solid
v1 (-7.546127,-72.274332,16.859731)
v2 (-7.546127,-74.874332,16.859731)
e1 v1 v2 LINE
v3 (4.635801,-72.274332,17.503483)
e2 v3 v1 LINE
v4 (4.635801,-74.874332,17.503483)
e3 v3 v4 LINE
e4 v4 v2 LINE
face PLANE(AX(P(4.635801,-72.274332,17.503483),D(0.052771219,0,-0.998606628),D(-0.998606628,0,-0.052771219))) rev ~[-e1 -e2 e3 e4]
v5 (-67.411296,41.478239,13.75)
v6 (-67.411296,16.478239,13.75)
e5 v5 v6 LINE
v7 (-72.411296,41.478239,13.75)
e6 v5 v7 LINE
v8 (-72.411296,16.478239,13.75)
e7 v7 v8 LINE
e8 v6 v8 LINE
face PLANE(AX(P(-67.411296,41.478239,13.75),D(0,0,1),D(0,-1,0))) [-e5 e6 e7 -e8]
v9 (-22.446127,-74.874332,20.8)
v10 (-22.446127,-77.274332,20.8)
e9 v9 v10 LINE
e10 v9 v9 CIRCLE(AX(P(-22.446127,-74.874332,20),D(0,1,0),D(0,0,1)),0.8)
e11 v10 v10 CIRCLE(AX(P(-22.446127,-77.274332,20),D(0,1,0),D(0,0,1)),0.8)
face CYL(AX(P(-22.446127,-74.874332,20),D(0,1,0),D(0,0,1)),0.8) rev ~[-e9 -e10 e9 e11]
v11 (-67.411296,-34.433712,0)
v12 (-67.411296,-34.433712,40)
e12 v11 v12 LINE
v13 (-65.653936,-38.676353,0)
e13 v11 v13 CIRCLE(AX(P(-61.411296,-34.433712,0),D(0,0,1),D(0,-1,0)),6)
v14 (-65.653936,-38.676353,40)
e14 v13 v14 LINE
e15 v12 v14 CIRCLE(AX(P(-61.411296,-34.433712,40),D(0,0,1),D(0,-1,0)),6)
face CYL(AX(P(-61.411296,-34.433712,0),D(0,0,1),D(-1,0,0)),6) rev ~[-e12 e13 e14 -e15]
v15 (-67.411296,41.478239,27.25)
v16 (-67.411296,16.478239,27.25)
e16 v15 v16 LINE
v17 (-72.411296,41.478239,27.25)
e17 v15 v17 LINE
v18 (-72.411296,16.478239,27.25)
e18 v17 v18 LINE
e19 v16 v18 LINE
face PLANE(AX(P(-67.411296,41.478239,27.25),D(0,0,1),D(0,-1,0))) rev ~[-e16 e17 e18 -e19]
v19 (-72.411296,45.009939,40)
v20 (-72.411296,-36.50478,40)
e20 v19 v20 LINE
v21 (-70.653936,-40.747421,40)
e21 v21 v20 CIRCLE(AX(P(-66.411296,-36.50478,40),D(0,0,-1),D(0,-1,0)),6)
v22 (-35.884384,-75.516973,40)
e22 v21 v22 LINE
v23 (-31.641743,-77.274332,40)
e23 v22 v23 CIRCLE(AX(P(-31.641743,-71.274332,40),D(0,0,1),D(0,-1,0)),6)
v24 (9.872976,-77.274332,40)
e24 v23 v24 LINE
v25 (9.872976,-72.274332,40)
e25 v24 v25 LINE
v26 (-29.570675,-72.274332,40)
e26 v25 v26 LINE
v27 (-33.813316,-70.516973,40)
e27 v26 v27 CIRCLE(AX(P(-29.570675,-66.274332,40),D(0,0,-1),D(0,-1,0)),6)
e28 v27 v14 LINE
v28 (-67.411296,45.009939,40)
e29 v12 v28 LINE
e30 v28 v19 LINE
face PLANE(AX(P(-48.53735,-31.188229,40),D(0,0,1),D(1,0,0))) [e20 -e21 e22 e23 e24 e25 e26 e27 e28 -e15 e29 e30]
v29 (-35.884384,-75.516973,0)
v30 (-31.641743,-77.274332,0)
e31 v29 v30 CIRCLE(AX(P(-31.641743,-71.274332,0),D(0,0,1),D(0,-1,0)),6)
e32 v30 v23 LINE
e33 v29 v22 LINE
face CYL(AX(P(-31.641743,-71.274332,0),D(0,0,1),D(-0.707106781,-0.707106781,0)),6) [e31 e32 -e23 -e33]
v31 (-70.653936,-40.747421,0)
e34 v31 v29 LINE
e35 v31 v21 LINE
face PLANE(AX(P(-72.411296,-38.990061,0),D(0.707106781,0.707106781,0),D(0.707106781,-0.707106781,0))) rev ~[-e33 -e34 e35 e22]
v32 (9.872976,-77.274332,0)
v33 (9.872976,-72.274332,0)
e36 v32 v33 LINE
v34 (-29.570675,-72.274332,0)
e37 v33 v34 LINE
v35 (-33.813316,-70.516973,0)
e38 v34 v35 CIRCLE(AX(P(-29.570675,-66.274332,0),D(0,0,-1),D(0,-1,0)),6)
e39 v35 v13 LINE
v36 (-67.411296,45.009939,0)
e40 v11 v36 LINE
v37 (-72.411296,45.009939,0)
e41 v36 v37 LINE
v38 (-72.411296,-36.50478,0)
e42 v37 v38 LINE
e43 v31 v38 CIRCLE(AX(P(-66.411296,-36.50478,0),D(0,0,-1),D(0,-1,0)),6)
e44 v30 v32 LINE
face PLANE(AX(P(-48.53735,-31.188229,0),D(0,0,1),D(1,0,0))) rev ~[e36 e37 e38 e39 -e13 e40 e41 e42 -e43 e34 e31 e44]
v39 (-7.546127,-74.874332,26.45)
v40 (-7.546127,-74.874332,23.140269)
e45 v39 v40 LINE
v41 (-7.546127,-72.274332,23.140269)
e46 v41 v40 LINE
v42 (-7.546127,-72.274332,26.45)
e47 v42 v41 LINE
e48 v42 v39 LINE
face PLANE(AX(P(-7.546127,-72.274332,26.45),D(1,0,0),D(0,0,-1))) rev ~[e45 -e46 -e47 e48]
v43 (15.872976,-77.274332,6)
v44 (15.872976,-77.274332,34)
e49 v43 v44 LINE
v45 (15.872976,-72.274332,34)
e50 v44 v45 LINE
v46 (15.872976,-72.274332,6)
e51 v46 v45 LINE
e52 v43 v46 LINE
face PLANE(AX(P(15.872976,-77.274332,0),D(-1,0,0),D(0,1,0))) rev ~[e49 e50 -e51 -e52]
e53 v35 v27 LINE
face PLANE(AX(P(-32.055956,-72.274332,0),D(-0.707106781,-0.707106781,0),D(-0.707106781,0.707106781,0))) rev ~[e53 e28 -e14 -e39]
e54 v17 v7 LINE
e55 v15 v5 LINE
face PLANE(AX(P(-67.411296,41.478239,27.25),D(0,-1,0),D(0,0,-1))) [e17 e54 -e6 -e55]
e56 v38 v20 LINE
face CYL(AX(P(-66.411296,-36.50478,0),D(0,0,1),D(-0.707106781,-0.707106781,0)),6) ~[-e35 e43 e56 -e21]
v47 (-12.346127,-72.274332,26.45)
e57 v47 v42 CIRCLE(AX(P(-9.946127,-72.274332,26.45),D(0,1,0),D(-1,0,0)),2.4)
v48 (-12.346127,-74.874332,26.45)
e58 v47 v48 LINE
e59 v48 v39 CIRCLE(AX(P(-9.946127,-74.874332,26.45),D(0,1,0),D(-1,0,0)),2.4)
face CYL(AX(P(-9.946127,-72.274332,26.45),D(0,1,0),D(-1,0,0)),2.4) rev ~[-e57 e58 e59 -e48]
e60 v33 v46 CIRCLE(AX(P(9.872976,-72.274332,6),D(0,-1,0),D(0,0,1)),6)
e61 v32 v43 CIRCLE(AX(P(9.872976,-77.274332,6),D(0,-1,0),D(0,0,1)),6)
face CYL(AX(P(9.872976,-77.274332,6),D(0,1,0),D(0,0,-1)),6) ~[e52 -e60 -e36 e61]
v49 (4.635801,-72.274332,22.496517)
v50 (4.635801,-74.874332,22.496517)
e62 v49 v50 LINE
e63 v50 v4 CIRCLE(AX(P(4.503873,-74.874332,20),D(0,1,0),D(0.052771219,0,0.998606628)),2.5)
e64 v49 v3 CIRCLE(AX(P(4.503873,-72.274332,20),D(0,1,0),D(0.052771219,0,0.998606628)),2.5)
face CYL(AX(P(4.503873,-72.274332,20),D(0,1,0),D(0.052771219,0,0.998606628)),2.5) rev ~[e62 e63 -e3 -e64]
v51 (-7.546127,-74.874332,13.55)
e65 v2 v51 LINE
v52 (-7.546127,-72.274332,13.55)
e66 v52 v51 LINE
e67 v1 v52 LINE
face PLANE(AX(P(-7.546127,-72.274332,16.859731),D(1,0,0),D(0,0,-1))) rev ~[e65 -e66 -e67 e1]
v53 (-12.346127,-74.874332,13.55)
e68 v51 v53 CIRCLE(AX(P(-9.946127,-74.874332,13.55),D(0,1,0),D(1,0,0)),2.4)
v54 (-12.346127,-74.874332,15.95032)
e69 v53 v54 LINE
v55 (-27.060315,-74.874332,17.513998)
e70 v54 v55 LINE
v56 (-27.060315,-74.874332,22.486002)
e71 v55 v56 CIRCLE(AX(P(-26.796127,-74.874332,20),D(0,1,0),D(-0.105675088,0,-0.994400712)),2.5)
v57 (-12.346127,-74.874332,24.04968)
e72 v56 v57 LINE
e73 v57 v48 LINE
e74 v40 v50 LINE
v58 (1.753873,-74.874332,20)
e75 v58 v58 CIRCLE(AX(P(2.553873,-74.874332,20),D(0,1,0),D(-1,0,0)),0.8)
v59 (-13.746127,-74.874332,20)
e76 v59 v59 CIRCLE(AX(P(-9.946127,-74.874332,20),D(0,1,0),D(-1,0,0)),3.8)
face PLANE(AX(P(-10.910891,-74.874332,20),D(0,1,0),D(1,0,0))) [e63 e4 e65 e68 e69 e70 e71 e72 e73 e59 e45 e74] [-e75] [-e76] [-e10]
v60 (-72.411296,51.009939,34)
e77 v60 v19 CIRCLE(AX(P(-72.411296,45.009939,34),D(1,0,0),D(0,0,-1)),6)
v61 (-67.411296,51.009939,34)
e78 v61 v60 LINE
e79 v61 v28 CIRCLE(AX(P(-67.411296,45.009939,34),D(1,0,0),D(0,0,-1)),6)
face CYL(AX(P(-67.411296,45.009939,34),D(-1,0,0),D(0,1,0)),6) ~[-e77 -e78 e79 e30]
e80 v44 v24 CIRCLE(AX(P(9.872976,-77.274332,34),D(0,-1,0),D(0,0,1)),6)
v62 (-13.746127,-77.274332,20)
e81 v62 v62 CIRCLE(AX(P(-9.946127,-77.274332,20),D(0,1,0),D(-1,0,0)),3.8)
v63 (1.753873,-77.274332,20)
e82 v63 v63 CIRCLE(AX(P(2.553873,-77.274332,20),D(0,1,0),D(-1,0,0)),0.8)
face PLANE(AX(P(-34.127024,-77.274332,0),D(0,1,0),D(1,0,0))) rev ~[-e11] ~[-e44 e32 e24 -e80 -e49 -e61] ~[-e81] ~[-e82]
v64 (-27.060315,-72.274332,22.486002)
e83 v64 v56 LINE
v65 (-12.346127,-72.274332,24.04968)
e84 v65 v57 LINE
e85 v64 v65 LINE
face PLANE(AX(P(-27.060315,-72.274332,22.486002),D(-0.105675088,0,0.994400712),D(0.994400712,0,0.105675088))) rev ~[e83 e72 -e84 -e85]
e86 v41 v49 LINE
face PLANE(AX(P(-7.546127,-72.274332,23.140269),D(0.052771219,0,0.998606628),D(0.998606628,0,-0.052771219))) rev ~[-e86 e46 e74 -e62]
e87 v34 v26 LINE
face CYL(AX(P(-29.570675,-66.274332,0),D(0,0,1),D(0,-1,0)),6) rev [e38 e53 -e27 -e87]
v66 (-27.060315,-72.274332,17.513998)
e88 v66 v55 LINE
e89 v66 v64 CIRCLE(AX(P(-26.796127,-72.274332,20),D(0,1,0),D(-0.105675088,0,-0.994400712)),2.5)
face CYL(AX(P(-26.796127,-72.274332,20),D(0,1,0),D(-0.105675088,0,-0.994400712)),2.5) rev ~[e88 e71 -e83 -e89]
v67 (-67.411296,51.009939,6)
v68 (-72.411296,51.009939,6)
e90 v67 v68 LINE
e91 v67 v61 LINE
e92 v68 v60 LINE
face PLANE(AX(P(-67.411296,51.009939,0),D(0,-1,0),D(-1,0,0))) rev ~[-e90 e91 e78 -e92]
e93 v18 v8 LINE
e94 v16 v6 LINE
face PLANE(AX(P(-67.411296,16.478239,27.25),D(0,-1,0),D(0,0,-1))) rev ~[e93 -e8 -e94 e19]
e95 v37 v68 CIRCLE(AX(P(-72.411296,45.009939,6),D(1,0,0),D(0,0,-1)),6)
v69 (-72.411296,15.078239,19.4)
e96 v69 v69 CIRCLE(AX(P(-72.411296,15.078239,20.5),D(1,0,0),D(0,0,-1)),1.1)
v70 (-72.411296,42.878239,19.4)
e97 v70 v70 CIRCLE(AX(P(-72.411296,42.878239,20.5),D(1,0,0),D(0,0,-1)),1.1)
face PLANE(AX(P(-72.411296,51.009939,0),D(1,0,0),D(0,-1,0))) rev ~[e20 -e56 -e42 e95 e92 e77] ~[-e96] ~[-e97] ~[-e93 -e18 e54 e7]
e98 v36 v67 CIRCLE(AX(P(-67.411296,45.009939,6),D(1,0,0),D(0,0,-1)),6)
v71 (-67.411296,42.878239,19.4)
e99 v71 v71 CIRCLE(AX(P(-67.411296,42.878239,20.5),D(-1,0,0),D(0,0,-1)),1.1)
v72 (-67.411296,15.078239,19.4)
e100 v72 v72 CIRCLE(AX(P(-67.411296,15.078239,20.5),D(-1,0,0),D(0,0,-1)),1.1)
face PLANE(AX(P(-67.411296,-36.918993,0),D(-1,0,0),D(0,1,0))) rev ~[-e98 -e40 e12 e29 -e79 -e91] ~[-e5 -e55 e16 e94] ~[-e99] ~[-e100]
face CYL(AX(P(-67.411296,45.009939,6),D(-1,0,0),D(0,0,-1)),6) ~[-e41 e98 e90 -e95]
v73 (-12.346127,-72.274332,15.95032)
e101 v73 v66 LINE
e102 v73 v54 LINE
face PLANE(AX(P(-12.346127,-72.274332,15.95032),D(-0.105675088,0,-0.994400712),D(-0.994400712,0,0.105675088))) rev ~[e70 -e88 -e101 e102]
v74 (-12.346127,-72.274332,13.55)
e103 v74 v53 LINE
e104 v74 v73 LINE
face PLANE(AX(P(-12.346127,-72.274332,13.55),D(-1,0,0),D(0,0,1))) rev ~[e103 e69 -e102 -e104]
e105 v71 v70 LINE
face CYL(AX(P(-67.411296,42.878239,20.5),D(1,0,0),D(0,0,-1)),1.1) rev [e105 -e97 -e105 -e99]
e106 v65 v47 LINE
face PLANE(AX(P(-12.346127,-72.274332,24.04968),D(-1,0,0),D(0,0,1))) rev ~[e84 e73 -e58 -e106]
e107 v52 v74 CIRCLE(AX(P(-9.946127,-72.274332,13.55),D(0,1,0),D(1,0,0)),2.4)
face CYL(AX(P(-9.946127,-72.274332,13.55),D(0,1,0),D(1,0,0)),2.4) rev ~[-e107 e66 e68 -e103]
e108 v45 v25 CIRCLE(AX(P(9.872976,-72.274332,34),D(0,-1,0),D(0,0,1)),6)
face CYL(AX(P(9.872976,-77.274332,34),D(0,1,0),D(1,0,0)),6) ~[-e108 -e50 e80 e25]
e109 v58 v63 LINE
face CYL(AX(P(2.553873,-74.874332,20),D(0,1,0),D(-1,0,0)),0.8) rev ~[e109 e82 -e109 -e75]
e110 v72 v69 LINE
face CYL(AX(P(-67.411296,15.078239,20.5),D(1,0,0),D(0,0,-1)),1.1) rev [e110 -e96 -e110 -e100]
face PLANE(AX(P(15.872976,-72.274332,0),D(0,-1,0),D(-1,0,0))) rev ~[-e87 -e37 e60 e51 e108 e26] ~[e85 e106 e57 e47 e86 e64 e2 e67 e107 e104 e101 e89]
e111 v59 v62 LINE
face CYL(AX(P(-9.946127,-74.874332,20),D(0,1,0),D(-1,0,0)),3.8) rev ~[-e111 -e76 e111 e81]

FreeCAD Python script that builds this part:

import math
import FreeCAD as App
import Part
import Sketcher
from FreeCAD import Vector
Q = App.Units.Quantity


def edges_at(feature, points):
    """Names of the edges that pass closest to the given points."""
    edges = feature.Shape.Edges
    near = lambda p: min(range(len(edges)), key=lambda i: edges[i].distToShape(Part.Vertex(*p))[0])
    return sorted({f"Edge{near(p) + 1}" for p in points})


def add_polygon(sketch, points):
    """Adds a closed chain of lines whose ends are joined by coincident constraints."""
    first, n = sketch.GeometryCount, len(points)
    for a, b in zip(points, points[1:] + points[:1]):
        sketch.addGeometry(Part.LineSegment(App.Vector(*a, 0), App.Vector(*b, 0)), False)
    for i in range(n):
        sketch.addConstraint(Sketcher.Constraint("Coincident", first + i, 2, first + (i + 1) % n, 1))

doc = App.newDocument("Part")
body = doc.addObject("PartDesign::Body", "Body")

sketch1 = doc.addObject("Sketcher::SketchObject", "Sketch")
body.addObject(sketch1)
sketch1.AttachmentSupport = (doc.XY_Plane, [""])
sketch1.MapMode = "FlatFace"
add_polygon(sketch1, [(15.872976, -72.274332), (-32.055956, -72.274332), (-67.411296, -36.918993), (-67.411296, 51.009939), (-72.411296, 51.009939), (-72.411296, -38.990061), (-34.127024, -77.274332), (15.872976, -77.274332)])
sketch1.addConstraint([
    Sketcher.Constraint("Horizontal", 0),
    Sketcher.Constraint("Vertical", 2),
    Sketcher.Constraint("Horizontal", 3),
    Sketcher.Constraint("Vertical", 4),
    Sketcher.Constraint("Horizontal", 6),
    Sketcher.Constraint("Vertical", 7),
    Sketcher.Constraint("Parallel", 1, 5),
    Sketcher.Constraint("Equal", 3, 7),
    Sketcher.Constraint("DistanceX", 3, 2, 3, 1, 5.0),
    Sketcher.Constraint("DistanceX", 6, 1, 6, 2, 50.0),
    Sketcher.Constraint("DistanceY", 4, 2, 4, 1, 90.0),
    Sketcher.Constraint("Angle", 1, Q("135 deg")),
    Sketcher.Constraint("Distance", 1, 50.0),
    Sketcher.Constraint("DistanceX", 0, 2, 0, 1, 47.928932),
    Sketcher.Constraint("DistanceY", -1, 1, 2, 2, 51.009939),
    Sketcher.Constraint("DistanceX", 0, 2, -1, 1, 32.055956),
])
pad1 = doc.addObject("PartDesign::Pad", "Pad")
body.addObject(pad1)
pad1.Profile = sketch1
pad1.Length = 40
doc.recompute()

fillet = doc.addObject("PartDesign::Fillet", "Fillet")
body.addObject(fillet)
fillet.Base = (pad1, edges_at(pad1, [(-34.127, -77.274, 20)]))
fillet.Radius = 6

sketch2 = doc.addObject("Sketcher::SketchObject", "Sketch001")
body.addObject(sketch2)
sketch2.AttachmentSupport = (doc.XZ_Plane, [""])
sketch2.MapMode = "FlatFace"
sketch2.AttachmentOffset = App.Placement(Vector(0, 0, 72.274332), App.Rotation())
sketch2.addGeometry([
    Part.LineSegment(Vector(4.635801, 17.503483, 0), Vector(-7.546127, 16.859731, 0)),
    Part.LineSegment(Vector(-7.546127, 16.859731, 0), Vector(-7.546127, 13.55, 0)),
    Part.ArcOfCircle(Part.Circle(Vector(-9.946127, 13.55, 0), Vector(0, 0, 1), 2.4), math.radians(180), math.radians(360)),
    Part.LineSegment(Vector(-12.346127, 13.55, 0), Vector(-12.346127, 15.95032, 0)),
    Part.LineSegment(Vector(-12.346127, 15.95032, 0), Vector(-27.060315, 17.513998, 0)),
    Part.ArcOfCircle(Part.Circle(Vector(-26.796127, 20, 0), Vector(0, 0, 1), 2.5), math.radians(96.066063), math.radians(263.933937)),
    Part.LineSegment(Vector(-27.060315, 22.486002, 0), Vector(-12.346127, 24.04968, 0)),
    Part.LineSegment(Vector(-12.346127, 24.04968, 0), Vector(-12.346127, 26.45, 0)),
    Part.ArcOfCircle(Part.Circle(Vector(-9.946127, 26.45, 0), Vector(0, 0, 1), 2.4), math.radians(0), math.radians(180)),
    Part.LineSegment(Vector(-7.546127, 26.45, 0), Vector(-7.546127, 23.140269, 0)),
    Part.LineSegment(Vector(-7.546127, 23.140269, 0), Vector(4.635801, 22.496517, 0)),
    Part.ArcOfCircle(Part.Circle(Vector(4.503873, 20, 0), Vector(0, 0, 1), 2.5), math.radians(-86.975027), math.radians(86.975027)),
], False)
sketch2.addConstraint([
    Sketcher.Constraint("Coincident", 0, 2, 1, 1),
    Sketcher.Constraint("Tangent", 1, 2, 2, 2),
    Sketcher.Constraint("Tangent", 2, 1, 3, 1),
    Sketcher.Constraint("Coincident", 3, 2, 4, 1),
    Sketcher.Constraint("Tangent", 4, 2, 5, 2),
    Sketcher.Constraint("Tangent", 5, 1, 6, 1),
    Sketcher.Constraint("Coincident", 6, 2, 7, 1),
    Sketcher.Constraint("Tangent", 7, 2, 8, 2),
    Sketcher.Constraint("Tangent", 8, 1, 9, 1),
    Sketcher.Constraint("Coincident", 9, 2, 10, 1),
    Sketcher.Constraint("Tangent", 10, 2, 11, 2),
    Sketcher.Constraint("Tangent", 11, 1, 0, 1),
    Sketcher.Constraint("Vertical", 1),
    Sketcher.Constraint("Vertical", 3),
    Sketcher.Constraint("Vertical", 7),
    Sketcher.Constraint("Vertical", 9),
    Sketcher.Constraint("Equal", 2, 8),
    Sketcher.Constraint("Equal", 5, 11),
    Sketcher.Constraint("Horizontal", 5, 3, 11, 3),
    Sketcher.Constraint("Vertical", 2, 3, 8, 3),
    Sketcher.Constraint("Vertical", 4, 2, 5, 1),
    Sketcher.Constraint("Vertical", 10, 2, 11, 1),
    Sketcher.Constraint("Equal", 3, 7),
    Sketcher.Constraint("Radius", 2, 2.4),
    Sketcher.Constraint("Radius", 5, 2.5),
    Sketcher.Constraint("DistanceY", -1, 1, 5, 3, 20.0),
    Sketcher.Constraint("DistanceY", 2, 3, 8, 3, 12.9),
    Sketcher.Constraint("DistanceX", 5, 3, 11, 3, 31.3),
    Sketcher.Constraint("DistanceX", 5, 3, 2, 3, 16.85),
    Sketcher.Constraint("DistanceY", -1, 1, 4, 2, 17.513998),
    Sketcher.Constraint("DistanceY", 1, 2, 1, 1, 3.309731),
    Sketcher.Constraint("DistanceX", -1, 1, 10, 2, 4.635801),
])
pocket1 = doc.addObject("PartDesign::Pocket", "Pocket")
body.addObject(pocket1)
pocket1.Profile = sketch2
pocket1.Length = 2.6
pocket1.Reversed = True

sketch3 = doc.addObject("Sketcher::SketchObject", "Sketch002")
body.addObject(sketch3)
sketch3.AttachmentSupport = (doc.YZ_Plane, [""])
sketch3.MapMode = "FlatFace"
sketch3.AttachmentOffset = App.Placement(Vector(0, 0, -67.411296), App.Rotation())
sketch3.addGeometry(Part.Circle(Vector(42.878239, 20.5, 0), Vector(0, 0, 1), 1.1), False)
sketch3.addGeometry(Part.Circle(Vector(15.078239, 20.5, 0), Vector(0, 0, 1), 1.1), False)
add_polygon(sketch3, [(16.478239, 27.25), (41.478239, 27.25), (41.478239, 13.75), (16.478239, 13.75)])
sketch3.addConstraint([
    Sketcher.Constraint("Horizontal", 2),
    Sketcher.Constraint("Vertical", 3),
    Sketcher.Constraint("Horizontal", 4),
    Sketcher.Constraint("Vertical", 5),
    Sketcher.Constraint("Equal", 0, 1),
    Sketcher.Constraint("Horizontal", 0, 3, 1, 3),
    Sketcher.Constraint("Diameter", 0, 2.2),
    Sketcher.Constraint("DistanceX", 2, 1, 2, 2, 25.0),
    Sketcher.Constraint("DistanceY", 3, 2, 3, 1, 13.5),
    Sketcher.Constraint("DistanceY", -1, 1, 0, 3, 20.5),
    Sketcher.Constraint("DistanceX", 1, 3, 0, 3, 27.8),
    Sketcher.Constraint("DistanceX", 2, 2, 0, 3, 1.4),
    Sketcher.Constraint("DistanceY", -1, 1, 2, 2, 27.25),
    Sketcher.Constraint("DistanceX", -1, 1, 0, 3, 42.878239),
])
pocket2 = doc.addObject("PartDesign::Pocket", "Pocket001")
body.addObject(pocket2)
pocket2.Profile = sketch3
pocket2.Length = 10
doc.recompute()

fillet2 = doc.addObject("PartDesign::Fillet", "Fillet001")
body.addObject(fillet2)
fillet2.Base = (pocket2, edges_at(pocket2, [(-32.056, -72.274, 20)]))
fillet2.Radius = 6
doc.recompute()

fillet3 = doc.addObject("PartDesign::Fillet", "Fillet002")
body.addObject(fillet3)
fillet3.Base = (fillet2, edges_at(fillet2, [(-72.411, -38.99, 20)]))
fillet3.Radius = 6
doc.recompute()

fillet4 = doc.addObject("PartDesign::Fillet", "Fillet003")
body.addObject(fillet4)
fillet4.Base = (fillet3, edges_at(fillet3, [(-67.411, -36.919, 20)]))
fillet4.Radius = 6
doc.recompute()

fillet5 = doc.addObject("PartDesign::Fillet", "Fillet004")
body.addObject(fillet5)
fillet5.Base = (fillet4, edges_at(fillet4, [(-69.911, 51.01, 0)]))
fillet5.Radius = 6
doc.recompute()

fillet6 = doc.addObject("PartDesign::Fillet", "Fillet005")
body.addObject(fillet6)
fillet6.Base = (fillet5, edges_at(fillet5, [(-69.911, 51.01, 40)]))
fillet6.Radius = 6
doc.recompute()

fillet7 = doc.addObject("PartDesign::Fillet", "Fillet006")
body.addObject(fillet7)
fillet7.Base = (fillet6, edges_at(fillet6, [(15.873, -74.774, 0)]))
fillet7.Radius = 6
doc.recompute()

fillet8 = doc.addObject("PartDesign::Fillet", "Fillet007")
body.addObject(fillet8)
fillet8.Base = (fillet7, edges_at(fillet7, [(15.873, -74.774, 40)]))
fillet8.Radius = 6

sketch4 = doc.addObject("Sketcher::SketchObject", "Sketch003")
body.addObject(sketch4)
sketch4.AttachmentSupport = (doc.XZ_Plane, [""])
sketch4.MapMode = "FlatFace"
sketch4.AttachmentOffset = App.Placement(Vector(0, 0, 74.874332), App.Rotation())
sketch4.addGeometry([
    Part.Circle(Vector(-9.946127, 20, 0), Vector(0, 0, 1), 3.8),
    Part.Circle(Vector(2.553873, 20, 0), Vector(0, 0, 1), 0.8),
    Part.Circle(Vector(-22.446127, 20, 0), Vector(0, 0, 1), 0.8),
], False)
sketch4.addConstraint([
    Sketcher.Constraint("Equal", 1, 2),
    Sketcher.Constraint("Horizontal", 0, 3, 1, 3),
    Sketcher.Constraint("Horizontal", 1, 3, 2, 3),
    Sketcher.Constraint("Diameter", 0, 7.6),
    Sketcher.Constraint("Diameter", 1, 1.6),
    Sketcher.Constraint("DistanceY", -1, 1, 0, 3, 20.0),
    Sketcher.Constraint("DistanceX", 2, 3, 1, 3, 25.0),
    Sketcher.Constraint("DistanceX", 0, 3, 1, 3, 12.5),
    Sketcher.Constraint("DistanceX", 0, 3, -1, 1, 9.946127),
])
pocket3 = doc.addObject("PartDesign::Pocket", "Pocket002")
body.addObject(pocket3)
pocket3.Profile = sketch4
pocket3.Length = 10
pocket3.Reversed = True

doc.recompute()
